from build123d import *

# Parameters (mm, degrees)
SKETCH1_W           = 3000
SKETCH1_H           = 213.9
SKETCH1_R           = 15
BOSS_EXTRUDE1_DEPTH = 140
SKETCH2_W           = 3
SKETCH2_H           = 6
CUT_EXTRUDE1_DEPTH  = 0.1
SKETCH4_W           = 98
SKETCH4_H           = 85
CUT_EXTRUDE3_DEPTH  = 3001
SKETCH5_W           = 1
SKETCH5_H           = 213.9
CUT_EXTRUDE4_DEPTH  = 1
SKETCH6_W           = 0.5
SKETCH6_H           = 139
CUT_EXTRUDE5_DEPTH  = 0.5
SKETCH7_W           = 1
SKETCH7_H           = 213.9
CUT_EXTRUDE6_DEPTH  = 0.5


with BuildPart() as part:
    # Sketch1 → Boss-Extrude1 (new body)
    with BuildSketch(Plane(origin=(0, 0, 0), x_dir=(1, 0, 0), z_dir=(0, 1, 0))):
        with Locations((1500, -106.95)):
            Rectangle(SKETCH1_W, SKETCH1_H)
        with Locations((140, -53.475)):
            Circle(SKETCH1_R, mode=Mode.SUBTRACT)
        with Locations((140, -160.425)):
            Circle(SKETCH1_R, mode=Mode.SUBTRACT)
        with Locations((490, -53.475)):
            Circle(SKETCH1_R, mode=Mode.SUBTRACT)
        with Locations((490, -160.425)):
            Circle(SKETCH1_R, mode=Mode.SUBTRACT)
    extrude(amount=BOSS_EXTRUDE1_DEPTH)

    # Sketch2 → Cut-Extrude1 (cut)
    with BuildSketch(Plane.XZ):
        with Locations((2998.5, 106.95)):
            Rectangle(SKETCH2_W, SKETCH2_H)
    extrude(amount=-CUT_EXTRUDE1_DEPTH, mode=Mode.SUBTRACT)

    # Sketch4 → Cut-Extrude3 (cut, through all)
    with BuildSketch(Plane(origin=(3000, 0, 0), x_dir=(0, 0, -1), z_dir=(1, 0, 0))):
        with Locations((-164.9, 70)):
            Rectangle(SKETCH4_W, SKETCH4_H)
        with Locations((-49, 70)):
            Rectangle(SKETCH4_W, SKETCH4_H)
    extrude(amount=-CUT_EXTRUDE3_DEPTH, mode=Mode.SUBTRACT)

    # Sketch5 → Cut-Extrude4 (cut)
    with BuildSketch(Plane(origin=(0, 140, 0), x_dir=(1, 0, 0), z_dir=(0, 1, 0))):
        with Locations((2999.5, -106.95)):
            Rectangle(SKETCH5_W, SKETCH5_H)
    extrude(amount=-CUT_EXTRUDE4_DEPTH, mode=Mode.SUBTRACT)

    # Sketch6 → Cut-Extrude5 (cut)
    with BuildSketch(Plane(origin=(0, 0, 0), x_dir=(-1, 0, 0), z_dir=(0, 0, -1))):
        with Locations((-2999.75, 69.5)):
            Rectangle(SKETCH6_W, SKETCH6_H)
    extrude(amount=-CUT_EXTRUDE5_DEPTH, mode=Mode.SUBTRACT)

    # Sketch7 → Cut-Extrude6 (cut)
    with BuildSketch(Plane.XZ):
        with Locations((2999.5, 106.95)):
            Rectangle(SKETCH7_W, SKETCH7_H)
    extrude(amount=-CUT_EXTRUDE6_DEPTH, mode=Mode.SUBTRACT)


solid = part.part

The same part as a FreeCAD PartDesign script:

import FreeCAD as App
import Part
import Sketcher
from FreeCAD import Vector

doc = App.newDocument("Part")
body = doc.addObject("PartDesign::Body", "Body")

# Sketch on XZ plane
sketch1 = body.newObject("Sketcher::SketchObject", "Sketch")
sketch1.AttachmentSupport = (doc.getObject("XZ_Plane"), [""])
sketch1.MapMode = "FlatFace"
sketch1.addGeometry([
    Part.LineSegment(Vector(0, 0, 0), Vector(0, 213.9, 0)),  # 0
    Part.LineSegment(Vector(0, 213.9, 0), Vector(3000, 213.9, 0)),  # 1
    Part.LineSegment(Vector(3000, 213.9, 0), Vector(3000, 0, 0)),  # 2
    Part.LineSegment(Vector(3000, 0, 0), Vector(0, 0, 0)),  # 3
    Part.Circle(Vector(140, 160.425, 0), Vector(0, 0, 1), 15),  # 4
    Part.Circle(Vector(490, 160.425, 0), Vector(0, 0, 1), 15),  # 5
    Part.Circle(Vector(140, 53.475, 0), Vector(0, 0, 1), 15),  # 6
    Part.Circle(Vector(490, 53.475, 0), Vector(0, 0, 1), 15),  # 7
], False)
sketch1.addConstraint([
    Sketcher.Constraint("Coincident", 0, 2, 1, 1),
    Sketcher.Constraint("Coincident", 1, 2, 2, 1),
    Sketcher.Constraint("Coincident", 2, 2, 3, 1),
    Sketcher.Constraint("Coincident", 3, 2, 0, 1),
    Sketcher.Constraint("Vertical", 0),
    Sketcher.Constraint("Horizontal", 1),
    Sketcher.Constraint("Vertical", 2),
    Sketcher.Constraint("Horizontal", 3),
    Sketcher.Constraint("Coincident", 3, 2, -1, 1),
    Sketcher.Constraint("Equal", 4, 5),
    Sketcher.Constraint("Equal", 5, 6),
    Sketcher.Constraint("Equal", 6, 7),
    Sketcher.Constraint("Horizontal", 4, 3, 5, 3),
    Sketcher.Constraint("Horizontal", 6, 3, 7, 3),
    Sketcher.Constraint("Vertical", 4, 3, 6, 3),
    Sketcher.Constraint("Vertical", 5, 3, 7, 3),
    Sketcher.Constraint("Diameter", 4, 30.0),
    Sketcher.Constraint("DistanceX", 1, 1, 1, 2, 3000.0),
    Sketcher.Constraint("DistanceY", 0, 1, 0, 2, 213.9),
    Sketcher.Constraint("DistanceX", -1, 1, 4, 3, 140.0),
    Sketcher.Constraint("DistanceX", -1, 1, 5, 3, 490.0),
    Sketcher.Constraint("DistanceY", 6, 3, 4, 3, 106.95),
    Sketcher.Constraint("DistanceY", -1, 1, 4, 3, 160.425),
])
pad1 = body.newObject("PartDesign::Pad", "Pad")
pad1.Profile = sketch1
pad1.Length = 140
pad1.Reversed = True

# Sketch on XZ plane
sketch2 = body.newObject("Sketcher::SketchObject", "Sketch001")
sketch2.AttachmentSupport = (doc.getObject("XZ_Plane"), [""])
sketch2.MapMode = "FlatFace"
sketch2.addGeometry([
    Part.LineSegment(Vector(2997, 109.95, 0), Vector(2997, 103.95, 0)),
    Part.LineSegment(Vector(2997, 103.95, 0), Vector(3000, 103.95, 0)),
    Part.LineSegment(Vector(3000, 103.95, 0), Vector(3000, 109.95, 0)),
    Part.LineSegment(Vector(3000, 109.95, 0), Vector(2997, 109.95, 0)),
], False)
sketch2.addConstraint([
    Sketcher.Constraint("Coincident", 0, 2, 1, 1),
    Sketcher.Constraint("Coincident", 1, 2, 2, 1),
    Sketcher.Constraint("Coincident", 2, 2, 3, 1),
    Sketcher.Constraint("Coincident", 3, 2, 0, 1),
    Sketcher.Constraint("Vertical", 0),
    Sketcher.Constraint("Horizontal", 1),
    Sketcher.Constraint("Vertical", 2),
    Sketcher.Constraint("Horizontal", 3),
    Sketcher.Constraint("DistanceX", 1, 1, 1, 2, 3.0),
    Sketcher.Constraint("DistanceY", 0, 2, 0, 1, 6.0),
    Sketcher.Constraint("DistanceX", -1, 1, 0, 2, 2997.0),
    Sketcher.Constraint("DistanceY", -1, 1, 0, 2, 103.95),
])
pocket1 = body.newObject("PartDesign::Pocket", "Pocket")
pocket1.Profile = sketch2
pocket1.Length = 0.1

# Sketch on YZ plane
sketch3 = body.newObject("Sketcher::SketchObject", "Sketch002")
sketch3.AttachmentSupport = (doc.getObject("YZ_Plane"), [""])
sketch3.MapMode = "FlatFace"
sketch3.AttachmentOffset = App.Placement(Vector(0, 0, 3000), App.Rotation())
sketch3.addGeometry([
    Part.LineSegment(Vector(112.5, 213.9, 0), Vector(27.5, 213.9, 0)),  # 0
    Part.LineSegment(Vector(27.5, 213.9, 0), Vector(27.5, 115.9, 0)),  # 1
    Part.LineSegment(Vector(27.5, 115.9, 0), Vector(112.5, 115.9, 0)),  # 2
    Part.LineSegment(Vector(112.5, 115.9, 0), Vector(112.5, 213.9, 0)),  # 3
    Part.LineSegment(Vector(112.5, 98, 0), Vector(27.5, 98, 0)),  # 4
    Part.LineSegment(Vector(27.5, 98, 0), Vector(27.5, 0, 0)),  # 5
    Part.LineSegment(Vector(27.5, 0, 0), Vector(112.5, 0, 0)),  # 6
    Part.LineSegment(Vector(112.5, 0, 0), Vector(112.5, 98, 0)),  # 7
], False)
sketch3.addConstraint([
    Sketcher.Constraint("Coincident", 0, 2, 1, 1),
    Sketcher.Constraint("Coincident", 1, 2, 2, 1),
    Sketcher.Constraint("Coincident", 2, 2, 3, 1),
    Sketcher.Constraint("Coincident", 3, 2, 0, 1),
    Sketcher.Constraint("Coincident", 4, 2, 5, 1),
    Sketcher.Constraint("Coincident", 5, 2, 6, 1),
    Sketcher.Constraint("Coincident", 6, 2, 7, 1),
    Sketcher.Constraint("Coincident", 7, 2, 4, 1),
    Sketcher.Constraint("Horizontal", 0),
    Sketcher.Constraint("Vertical", 1),
    Sketcher.Constraint("Horizontal", 2),
    Sketcher.Constraint("Vertical", 3),
    Sketcher.Constraint("Horizontal", 4),
    Sketcher.Constraint("Vertical", 5),
    Sketcher.Constraint("Horizontal", 6),
    Sketcher.Constraint("Vertical", 7),
    Sketcher.Constraint("PointOnObject", 5, 2, -1),
    Sketcher.Constraint("Vertical", 1, 2, 4, 2),
    Sketcher.Constraint("Vertical", 3, 2, 6, 2),
    Sketcher.Constraint("Equal", 3, 5),
    Sketcher.Constraint("DistanceX", 0, 2, 0, 1, 85.0),
    Sketcher.Constraint("DistanceY", 1, 2, 1, 1, 98.0),
    Sketcher.Constraint("DistanceX", -1, 1, 0, 2, 27.5),
    Sketcher.Constraint("DistanceY", -1, 1, 0, 2, 213.9),
])
pocket2 = body.newObject("PartDesign::Pocket", "Pocket001")
pocket2.Profile = sketch3
pocket2.Type = "ThroughAll"

# Sketch on XZ plane
sketch4 = body.newObject("Sketcher::SketchObject", "Sketch003")
sketch4.AttachmentSupport = (doc.getObject("XZ_Plane"), [""])
sketch4.MapMode = "FlatFace"
sketch4.AttachmentOffset = App.Placement(Vector(0, 0, -140), App.Rotation())
sketch4.addGeometry([
    Part.LineSegment(Vector(2999, 0, 0), Vector(2999, 213.9, 0)),
    Part.LineSegment(Vector(2999, 213.9, 0), Vector(3000, 213.9, 0)),
    Part.LineSegment(Vector(3000, 213.9, 0), Vector(3000, 0, 0)),
    Part.LineSegment(Vector(3000, 0, 0), Vector(2999, 0, 0)),
], False)
sketch4.addConstraint([
    Sketcher.Constraint("Coincident", 0, 2, 1, 1),
    Sketcher.Constraint("Coincident", 1, 2, 2, 1),
    Sketcher.Constraint("Coincident", 2, 2, 3, 1),
    Sketcher.Constraint("Coincident", 3, 2, 0, 1),
    Sketcher.Constraint("Vertical", 0),
    Sketcher.Constraint("Horizontal", 1),
    Sketcher.Constraint("Vertical", 2),
    Sketcher.Constraint("Horizontal", 3),
    Sketcher.Constraint("PointOnObject", 2, 2, -1),
    Sketcher.Constraint("DistanceX", 1, 1, 1, 2, 1.0),
    Sketcher.Constraint("DistanceY", 0, 1, 0, 2, 213.9),
    Sketcher.Constraint("DistanceX", -1, 1, 0, 2, 2999.0),
])
pocket3 = body.newObject("PartDesign::Pocket", "Pocket002")
pocket3.Profile = sketch4
pocket3.Length = 1
pocket3.Reversed = True

# Sketch on XY plane
sketch5 = body.newObject("Sketcher::SketchObject", "Sketch004")
sketch5.AttachmentSupport = (doc.getObject("XY_Plane"), [""])
sketch5.MapMode = "FlatFace"
sketch5.addGeometry([
    Part.LineSegment(Vector(3000, 139, 0), Vector(3000, 0, 0)),
    Part.LineSegment(Vector(3000, 0, 0), Vector(2999.5, 0, 0)),
    Part.LineSegment(Vector(2999.5, 0, 0), Vector(2999.5, 139, 0)),
    Part.LineSegment(Vector(2999.5, 139, 0), Vector(3000, 139, 0)),
], False)
sketch5.addConstraint([
    Sketcher.Constraint("Coincident", 0, 2, 1, 1),
    Sketcher.Constraint("Coincident", 1, 2, 2, 1),
    Sketcher.Constraint("Coincident", 2, 2, 3, 1),
    Sketcher.Constraint("Coincident", 3, 2, 0, 1),
    Sketcher.Constraint("Vertical", 0),
    Sketcher.Constraint("Horizontal", 1),
    Sketcher.Constraint("Vertical", 2),
    Sketcher.Constraint("Horizontal", 3),
    Sketcher.Constraint("PointOnObject", 0, 2, -1),
    Sketcher.Constraint("DistanceY", 0, 2, 0, 1, 139.0),
    Sketcher.Constraint("DistanceX", 1, 2, 1, 1, 0.5),
    Sketcher.Constraint("DistanceX", -1, 1, 0, 2, 3000.0),
])
pocket4 = body.newObject("PartDesign::Pocket", "Pocket003")
pocket4.Profile = sketch5
pocket4.Length = 0.5
pocket4.Reversed = True

# Sketch on XZ plane
sketch6 = body.newObject("Sketcher::SketchObject", "Sketch005")
sketch6.AttachmentSupport = (doc.getObject("XZ_Plane"), [""])
sketch6.MapMode = "FlatFace"
sketch6.addGeometry([
    Part.LineSegment(Vector(2999, 213.9, 0), Vector(2999, 0, 0)),
    Part.LineSegment(Vector(2999, 0, 0), Vector(3000, 0, 0)),
    Part.LineSegment(Vector(3000, 0, 0), Vector(3000, 213.9, 0)),
    Part.LineSegment(Vector(3000, 213.9, 0), Vector(2999, 213.9, 0)),
], False)
sketch6.addConstraint([
    Sketcher.Constraint("Coincident", 0, 2, 1, 1),
    Sketcher.Constraint("Coincident", 1, 2, 2, 1),
    Sketcher.Constraint("Coincident", 2, 2, 3, 1),
    Sketcher.Constraint("Coincident", 3, 2, 0, 1),
    Sketcher.Constraint("Vertical", 0),
    Sketcher.Constraint("Horizontal", 1),
    Sketcher.Constraint("Vertical", 2),
    Sketcher.Constraint("Horizontal", 3),
    Sketcher.Constraint("PointOnObject", 0, 2, -1),
    Sketcher.Constraint("DistanceX", 1, 1, 1, 2, 1.0),
    Sketcher.Constraint("DistanceY", 0, 2, 0, 1, 213.9),
    Sketcher.Constraint("DistanceX", -1, 1, 0, 2, 2999.0),
])
pocket5 = body.newObject("PartDesign::Pocket", "Pocket004")
pocket5.Profile = sketch6
pocket5.Length = 0.5

doc.recompute()
